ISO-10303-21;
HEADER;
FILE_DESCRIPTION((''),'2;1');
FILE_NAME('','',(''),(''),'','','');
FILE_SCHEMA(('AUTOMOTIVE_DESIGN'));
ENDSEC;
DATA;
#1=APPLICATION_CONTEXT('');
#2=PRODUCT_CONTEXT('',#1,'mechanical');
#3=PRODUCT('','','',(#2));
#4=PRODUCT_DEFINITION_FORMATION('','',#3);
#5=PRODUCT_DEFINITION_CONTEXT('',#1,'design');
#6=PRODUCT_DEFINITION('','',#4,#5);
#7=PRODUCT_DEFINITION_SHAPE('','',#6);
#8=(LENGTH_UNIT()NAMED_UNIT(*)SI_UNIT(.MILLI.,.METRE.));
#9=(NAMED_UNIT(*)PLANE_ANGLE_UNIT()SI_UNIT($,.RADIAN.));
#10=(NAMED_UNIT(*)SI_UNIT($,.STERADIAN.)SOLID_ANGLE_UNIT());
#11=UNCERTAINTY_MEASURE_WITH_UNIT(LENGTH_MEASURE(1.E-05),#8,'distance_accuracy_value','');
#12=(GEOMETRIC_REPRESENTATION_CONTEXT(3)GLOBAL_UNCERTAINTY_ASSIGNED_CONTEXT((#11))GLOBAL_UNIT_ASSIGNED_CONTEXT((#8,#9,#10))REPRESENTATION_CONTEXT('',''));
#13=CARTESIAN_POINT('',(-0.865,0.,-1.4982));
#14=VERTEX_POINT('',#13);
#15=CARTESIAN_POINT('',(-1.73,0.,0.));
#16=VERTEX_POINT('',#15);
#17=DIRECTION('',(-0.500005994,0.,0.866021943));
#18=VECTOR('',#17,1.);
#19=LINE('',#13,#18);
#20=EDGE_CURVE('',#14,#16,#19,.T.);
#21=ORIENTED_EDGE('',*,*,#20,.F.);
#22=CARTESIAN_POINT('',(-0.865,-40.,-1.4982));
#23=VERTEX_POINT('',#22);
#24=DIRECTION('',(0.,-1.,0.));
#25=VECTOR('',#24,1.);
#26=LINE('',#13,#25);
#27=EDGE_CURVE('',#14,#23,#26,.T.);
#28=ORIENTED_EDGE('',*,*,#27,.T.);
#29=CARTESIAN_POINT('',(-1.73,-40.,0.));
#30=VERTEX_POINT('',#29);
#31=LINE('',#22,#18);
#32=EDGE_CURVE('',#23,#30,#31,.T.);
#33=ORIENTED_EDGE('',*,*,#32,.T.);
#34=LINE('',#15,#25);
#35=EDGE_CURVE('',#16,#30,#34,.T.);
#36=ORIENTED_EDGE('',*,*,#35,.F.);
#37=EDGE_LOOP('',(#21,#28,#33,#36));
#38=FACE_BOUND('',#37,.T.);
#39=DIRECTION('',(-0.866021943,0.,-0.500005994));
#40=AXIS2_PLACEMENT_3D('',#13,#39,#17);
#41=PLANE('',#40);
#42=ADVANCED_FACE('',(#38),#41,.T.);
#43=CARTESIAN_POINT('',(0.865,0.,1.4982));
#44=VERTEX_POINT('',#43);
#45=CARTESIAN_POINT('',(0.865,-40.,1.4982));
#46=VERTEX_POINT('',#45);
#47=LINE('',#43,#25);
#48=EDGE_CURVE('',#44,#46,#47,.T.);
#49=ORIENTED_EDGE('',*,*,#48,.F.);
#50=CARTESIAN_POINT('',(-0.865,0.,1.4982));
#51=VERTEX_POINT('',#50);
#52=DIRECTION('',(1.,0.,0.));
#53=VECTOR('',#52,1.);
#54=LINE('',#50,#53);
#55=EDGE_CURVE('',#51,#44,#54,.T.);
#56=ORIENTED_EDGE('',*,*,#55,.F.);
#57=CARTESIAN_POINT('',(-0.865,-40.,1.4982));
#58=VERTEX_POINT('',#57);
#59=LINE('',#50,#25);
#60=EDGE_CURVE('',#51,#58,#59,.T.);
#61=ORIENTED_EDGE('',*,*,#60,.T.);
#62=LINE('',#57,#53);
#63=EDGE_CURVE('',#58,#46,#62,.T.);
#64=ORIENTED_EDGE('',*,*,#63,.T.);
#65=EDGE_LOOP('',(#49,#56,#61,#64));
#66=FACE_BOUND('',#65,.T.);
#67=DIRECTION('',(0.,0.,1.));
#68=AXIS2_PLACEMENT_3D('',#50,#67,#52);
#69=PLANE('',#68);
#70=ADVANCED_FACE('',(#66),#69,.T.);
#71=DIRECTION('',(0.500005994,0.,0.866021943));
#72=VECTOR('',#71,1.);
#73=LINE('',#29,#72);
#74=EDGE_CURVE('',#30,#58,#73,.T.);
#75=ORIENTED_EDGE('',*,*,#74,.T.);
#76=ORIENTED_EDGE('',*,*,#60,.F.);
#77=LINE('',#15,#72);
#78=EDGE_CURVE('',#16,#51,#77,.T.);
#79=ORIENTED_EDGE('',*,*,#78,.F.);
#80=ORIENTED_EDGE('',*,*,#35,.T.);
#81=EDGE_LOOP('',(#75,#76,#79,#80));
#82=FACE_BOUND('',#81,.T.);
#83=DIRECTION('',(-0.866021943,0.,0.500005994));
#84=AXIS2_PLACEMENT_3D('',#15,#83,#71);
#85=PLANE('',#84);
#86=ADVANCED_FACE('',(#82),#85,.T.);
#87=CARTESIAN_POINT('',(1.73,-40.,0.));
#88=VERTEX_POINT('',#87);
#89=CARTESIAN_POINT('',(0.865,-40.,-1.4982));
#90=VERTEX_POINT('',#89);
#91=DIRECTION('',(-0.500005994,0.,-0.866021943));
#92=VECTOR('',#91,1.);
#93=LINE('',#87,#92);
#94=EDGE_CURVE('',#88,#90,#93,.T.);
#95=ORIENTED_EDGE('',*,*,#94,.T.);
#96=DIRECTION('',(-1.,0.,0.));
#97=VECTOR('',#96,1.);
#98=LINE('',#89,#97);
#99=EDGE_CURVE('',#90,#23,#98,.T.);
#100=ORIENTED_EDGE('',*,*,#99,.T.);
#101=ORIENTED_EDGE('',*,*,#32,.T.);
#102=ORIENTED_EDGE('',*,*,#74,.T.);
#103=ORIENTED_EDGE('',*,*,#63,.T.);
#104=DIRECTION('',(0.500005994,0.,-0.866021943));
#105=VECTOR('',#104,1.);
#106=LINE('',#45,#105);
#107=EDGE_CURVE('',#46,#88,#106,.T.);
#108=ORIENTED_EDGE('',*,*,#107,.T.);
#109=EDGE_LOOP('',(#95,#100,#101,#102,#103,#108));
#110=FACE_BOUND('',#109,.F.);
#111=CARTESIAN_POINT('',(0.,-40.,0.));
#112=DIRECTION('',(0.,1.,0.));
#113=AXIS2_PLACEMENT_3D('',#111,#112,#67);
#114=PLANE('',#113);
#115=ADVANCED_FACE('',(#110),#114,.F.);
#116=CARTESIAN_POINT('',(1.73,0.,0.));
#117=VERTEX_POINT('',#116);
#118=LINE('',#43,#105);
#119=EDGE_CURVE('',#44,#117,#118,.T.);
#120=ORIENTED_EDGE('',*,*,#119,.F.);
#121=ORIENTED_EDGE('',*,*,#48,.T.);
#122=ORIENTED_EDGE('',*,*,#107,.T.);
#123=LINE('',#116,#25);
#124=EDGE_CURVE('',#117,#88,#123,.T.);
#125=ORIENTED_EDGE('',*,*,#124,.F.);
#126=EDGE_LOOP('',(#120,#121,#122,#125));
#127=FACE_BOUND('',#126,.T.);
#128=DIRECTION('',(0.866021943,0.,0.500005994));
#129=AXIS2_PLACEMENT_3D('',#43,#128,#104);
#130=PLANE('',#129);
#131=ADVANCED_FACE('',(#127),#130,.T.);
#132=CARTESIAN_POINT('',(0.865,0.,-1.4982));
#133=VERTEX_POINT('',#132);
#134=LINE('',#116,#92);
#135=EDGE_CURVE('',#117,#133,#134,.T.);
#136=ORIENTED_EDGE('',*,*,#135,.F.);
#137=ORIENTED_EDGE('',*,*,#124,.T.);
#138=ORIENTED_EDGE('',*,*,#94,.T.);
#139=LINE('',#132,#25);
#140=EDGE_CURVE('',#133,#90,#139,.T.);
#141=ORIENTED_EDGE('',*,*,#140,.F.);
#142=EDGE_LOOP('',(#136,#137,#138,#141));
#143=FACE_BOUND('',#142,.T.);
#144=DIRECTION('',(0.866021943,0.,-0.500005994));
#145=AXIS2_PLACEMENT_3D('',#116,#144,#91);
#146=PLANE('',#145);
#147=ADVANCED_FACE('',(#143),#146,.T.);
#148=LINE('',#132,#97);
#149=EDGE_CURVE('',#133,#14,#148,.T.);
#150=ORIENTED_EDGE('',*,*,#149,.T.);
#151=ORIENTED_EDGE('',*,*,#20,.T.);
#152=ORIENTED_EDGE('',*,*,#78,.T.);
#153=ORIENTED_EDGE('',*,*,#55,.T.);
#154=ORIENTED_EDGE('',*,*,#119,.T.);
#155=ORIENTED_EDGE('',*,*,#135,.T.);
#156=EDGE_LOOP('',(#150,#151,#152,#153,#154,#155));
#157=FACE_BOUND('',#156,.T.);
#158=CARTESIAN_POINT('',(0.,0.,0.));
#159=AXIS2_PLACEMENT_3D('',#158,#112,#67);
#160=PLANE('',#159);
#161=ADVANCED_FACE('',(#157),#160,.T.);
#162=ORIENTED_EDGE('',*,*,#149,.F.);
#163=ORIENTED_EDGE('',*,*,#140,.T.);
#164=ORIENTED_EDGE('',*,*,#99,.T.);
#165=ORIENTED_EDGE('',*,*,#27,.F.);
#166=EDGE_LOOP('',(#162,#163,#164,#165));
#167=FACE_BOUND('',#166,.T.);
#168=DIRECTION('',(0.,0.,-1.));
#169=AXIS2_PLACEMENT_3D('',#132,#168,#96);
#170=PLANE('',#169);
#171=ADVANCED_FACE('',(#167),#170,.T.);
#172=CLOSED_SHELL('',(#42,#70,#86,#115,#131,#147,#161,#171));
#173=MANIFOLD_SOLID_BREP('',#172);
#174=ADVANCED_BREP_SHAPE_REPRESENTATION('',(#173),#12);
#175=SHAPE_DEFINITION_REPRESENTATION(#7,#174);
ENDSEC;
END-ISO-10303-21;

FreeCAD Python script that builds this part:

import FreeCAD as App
import Part
import Sketcher

V = App.Vector

doc = App.newDocument("Part")
body = doc.addObject("PartDesign::Body", "Body")

# Sketch on XZ plane
sketch1 = doc.addObject("Sketcher::SketchObject", "Sketch")
body.addObject(sketch1)
sketch1.AttachmentSupport = (doc.XZ_Plane, [""])
sketch1.MapMode = "FlatFace"
sketch1.addGeometry([
    Part.LineSegment(V(0.9, 1.5, 0), V(-0.9, 1.5, 0)),  # 0
    Part.LineSegment(V(-0.9, 1.5, 0), V(-1.7, 0, 0)),  # 1
    Part.LineSegment(V(-1.7, 0, 0), V(-0.9, -1.5, 0)),  # 2
    Part.LineSegment(V(-0.9, -1.5, 0), V(0.9, -1.5, 0)),  # 3
    Part.LineSegment(V(0.9, -1.5, 0), V(1.7, 0, 0)),  # 4
    Part.LineSegment(V(1.7, 0, 0), V(0.9, 1.5, 0)),  # 5
], False)
sketch1.addConstraint([
    Sketcher.Constraint("Coincident", 0, 2, 1, 1),
    Sketcher.Constraint("Coincident", 1, 2, 2, 1),
    Sketcher.Constraint("Coincident", 2, 2, 3, 1),
    Sketcher.Constraint("Coincident", 3, 2, 4, 1),
    Sketcher.Constraint("Coincident", 4, 2, 5, 1),
    Sketcher.Constraint("Coincident", 5, 2, 0, 1),
    Sketcher.Constraint("Horizontal", 0),
    Sketcher.Constraint("Horizontal", 3),
    Sketcher.Constraint("Symmetric", 0, 2, 3, 2, -1, 1),
    Sketcher.Constraint("Symmetric", 1, 2, 4, 2, -1, 1),
    Sketcher.Constraint("PointOnObject", 1, 2, -1),
    Sketcher.Constraint("Parallel", 2, 5),
    Sketcher.Constraint("Vertical", 0, 2, 2, 2),
    Sketcher.Constraint("DistanceX", 0, 2, 0, 1, 1.73),
    Sketcher.Constraint("Distance", 1, 1.73),
    Sketcher.Constraint("DistanceX", 1, 2, -1, 1, 1.73),
])
pad1 = doc.addObject("PartDesign::Pad", "Pad")
body.addObject(pad1)
pad1.Profile = sketch1
pad1.Length = 40

doc.recompute()
